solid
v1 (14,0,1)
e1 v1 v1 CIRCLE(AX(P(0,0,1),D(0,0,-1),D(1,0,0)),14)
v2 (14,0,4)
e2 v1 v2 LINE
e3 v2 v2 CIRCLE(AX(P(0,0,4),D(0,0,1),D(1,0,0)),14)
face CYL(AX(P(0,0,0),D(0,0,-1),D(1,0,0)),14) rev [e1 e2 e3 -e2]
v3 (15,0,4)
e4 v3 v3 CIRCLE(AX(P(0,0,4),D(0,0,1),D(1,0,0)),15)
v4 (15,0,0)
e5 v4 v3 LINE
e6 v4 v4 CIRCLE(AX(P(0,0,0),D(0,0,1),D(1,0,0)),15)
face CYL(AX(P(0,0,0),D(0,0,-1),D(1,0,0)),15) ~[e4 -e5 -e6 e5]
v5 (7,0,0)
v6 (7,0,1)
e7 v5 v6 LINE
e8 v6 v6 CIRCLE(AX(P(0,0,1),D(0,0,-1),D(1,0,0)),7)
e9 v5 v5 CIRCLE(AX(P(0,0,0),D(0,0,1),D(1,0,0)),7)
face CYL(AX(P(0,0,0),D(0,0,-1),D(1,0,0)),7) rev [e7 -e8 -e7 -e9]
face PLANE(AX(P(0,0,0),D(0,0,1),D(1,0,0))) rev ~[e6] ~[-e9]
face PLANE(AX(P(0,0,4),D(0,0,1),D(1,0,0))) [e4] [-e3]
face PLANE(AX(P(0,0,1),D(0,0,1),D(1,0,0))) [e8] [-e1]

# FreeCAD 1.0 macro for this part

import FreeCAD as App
import Part
import Sketcher
Q = App.Units.Quantity


def faces_at(feature, points):
    """Names of the faces that lie closest to the given points."""
    faces = feature.Shape.Faces
    near = lambda p: min(range(len(faces)), key=lambda i: faces[i].distToShape(Part.Vertex(*p))[0])
    return sorted({f"Face{near(p) + 1}" for p in points})

doc = App.newDocument("Part")
params = doc.addObject("Spreadsheet::Sheet", "Params")
for row, (alias, value) in enumerate([
    ("sketch1_diameter", "30 mm"),
    ("pad1_length", "4 mm"),
    ("thickness_wall", "1 mm"),
    ("sketch2_diameter", "14 mm"),
    ("pocket1_length", "1.1 mm"),
], start=1):
    params.set(f"A{row}", alias)
    params.set(f"B{row}", "=" + value)
    params.setAlias(f"B{row}", alias)

body = doc.addObject("PartDesign::Body", "Body")

sketch1 = doc.addObject("Sketcher::SketchObject", "Sketch")
body.addObject(sketch1)
sketch1.AttachmentSupport = (doc.XY_Plane, [""])
sketch1.MapMode = "FlatFace"
sketch1.addGeometry(Part.Circle(App.Vector(0, 0, 0), App.Vector(0, 0, 1), 15), False)
sketch1.addConstraint([
    Sketcher.Constraint("Coincident", 0, 3, -1, 1),
    Sketcher.Constraint("Diameter", 0, Q("30 mm")),
])
sketch1.setExpression("Constraints[1]", "Params.sketch1_diameter")
pad1 = doc.addObject("PartDesign::Pad", "Pad")
body.addObject(pad1)
pad1.Profile = sketch1
pad1.setExpression("Length", "Params.pad1_length")
doc.recompute()

thickness = doc.addObject("PartDesign::Thickness", "Thickness")
body.addObject(thickness)
thickness.Base = (pad1, faces_at(pad1, [(0, 0, 4)]))
thickness.setExpression("Value", "Params.thickness_wall")
thickness.Reversed = True
thickness.Join = "Arc"

sketch2 = doc.addObject("Sketcher::SketchObject", "Sketch001")
body.addObject(sketch2)
sketch2.AttachmentSupport = (doc.XY_Plane, [""])
sketch2.MapMode = "FlatFace"
sketch2.addGeometry(Part.Circle(App.Vector(0, 0, 0), App.Vector(0, 0, 1), 7), False)
sketch2.addConstraint([
    Sketcher.Constraint("Coincident", 0, 3, -1, 1),
    Sketcher.Constraint("Diameter", 0, Q("14 mm")),
])
sketch2.setExpression("Constraints[1]", "Params.sketch2_diameter")
pocket1 = doc.addObject("PartDesign::Pocket", "Pocket")
body.addObject(pocket1)
pocket1.Profile = sketch2
pocket1.setExpression("Length", "Params.pocket1_length")
pocket1.Reversed = True

doc.recompute()
